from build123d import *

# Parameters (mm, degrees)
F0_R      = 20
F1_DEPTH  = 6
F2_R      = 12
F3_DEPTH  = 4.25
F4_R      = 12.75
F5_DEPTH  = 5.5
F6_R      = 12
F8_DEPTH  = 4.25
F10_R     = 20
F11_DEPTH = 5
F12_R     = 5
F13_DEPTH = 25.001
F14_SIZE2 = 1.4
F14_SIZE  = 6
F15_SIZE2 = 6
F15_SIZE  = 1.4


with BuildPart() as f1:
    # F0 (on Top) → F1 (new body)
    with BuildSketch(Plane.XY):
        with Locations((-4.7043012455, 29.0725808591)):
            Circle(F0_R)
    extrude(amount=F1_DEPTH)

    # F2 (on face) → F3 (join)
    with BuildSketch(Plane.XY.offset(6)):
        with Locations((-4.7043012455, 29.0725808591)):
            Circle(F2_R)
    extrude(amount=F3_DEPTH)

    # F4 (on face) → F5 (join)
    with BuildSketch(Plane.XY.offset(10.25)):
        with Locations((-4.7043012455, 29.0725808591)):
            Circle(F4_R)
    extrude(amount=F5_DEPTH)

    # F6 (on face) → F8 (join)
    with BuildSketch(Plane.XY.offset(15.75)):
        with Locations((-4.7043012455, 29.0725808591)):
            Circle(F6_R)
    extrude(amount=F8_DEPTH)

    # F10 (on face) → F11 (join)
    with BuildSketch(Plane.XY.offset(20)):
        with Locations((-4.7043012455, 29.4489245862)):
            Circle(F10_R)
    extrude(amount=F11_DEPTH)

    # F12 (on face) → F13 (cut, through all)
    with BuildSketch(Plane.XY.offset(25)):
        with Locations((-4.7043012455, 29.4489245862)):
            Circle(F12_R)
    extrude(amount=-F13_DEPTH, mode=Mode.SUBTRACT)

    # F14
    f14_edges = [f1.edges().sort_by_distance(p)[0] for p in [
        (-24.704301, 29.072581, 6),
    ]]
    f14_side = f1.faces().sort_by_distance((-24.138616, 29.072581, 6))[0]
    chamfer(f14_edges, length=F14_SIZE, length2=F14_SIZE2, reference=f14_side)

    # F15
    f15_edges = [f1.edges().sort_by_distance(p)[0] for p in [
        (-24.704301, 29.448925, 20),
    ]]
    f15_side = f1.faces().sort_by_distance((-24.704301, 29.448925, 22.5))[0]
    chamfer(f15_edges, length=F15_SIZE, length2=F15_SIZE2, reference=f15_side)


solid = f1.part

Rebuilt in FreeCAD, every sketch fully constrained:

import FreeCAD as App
import Part
import Sketcher
Q = App.Units.Quantity


def edges_at(feature, points):
    """Names of the edges that pass closest to the given points."""
    edges = feature.Shape.Edges
    near = lambda p: min(range(len(edges)), key=lambda i: edges[i].distToShape(Part.Vertex(*p))[0])
    return sorted({f"Edge{near(p) + 1}" for p in points})

doc = App.newDocument("Part")
params = doc.addObject("Spreadsheet::Sheet", "Params")
for row, (alias, value) in enumerate([
    ("sketch1_diameter", "40 mm"),
    ("pad1_length", "6 mm"),
    ("sketch2_diameter", "24 mm"),
    ("pad2_length", "4.25 mm"),
    ("sketch3_diameter", "25.5 mm"),
    ("pad3_length", "5.5 mm"),
    ("sketch4_diameter", "24 mm"),
    ("pad4_length", "4.25 mm"),
    ("sketch5_diameter", "40 mm"),
    ("pad5_length", "5 mm"),
    ("sketch6_diameter", "10 mm"),
    ("chamfer_size", "6 mm"),
    ("chamfer_size2", "1.4 mm"),
    ("chamfer2_size", "1.4 mm"),
    ("chamfer2_size2", "6 mm"),
], start=1):
    params.set(f"A{row}", alias)
    params.set(f"B{row}", "=" + value)
    params.setAlias(f"B{row}", alias)

body = doc.addObject("PartDesign::Body", "Body")

sketch1 = doc.addObject("Sketcher::SketchObject", "Sketch")
body.addObject(sketch1)
sketch1.AttachmentSupport = (doc.XY_Plane, [""])
sketch1.MapMode = "FlatFace"
sketch1.addGeometry(Part.Circle(App.Vector(-5, 29, 0), App.Vector(0, 0, 1), 20), False)
sketch1.addConstraint(Sketcher.Constraint("Diameter", 0, Q("40 mm")))
sketch1.addConstraint(Sketcher.Constraint("DistanceX", 0, 3, -1, 1, Q("4.704301 mm")))
sketch1.addConstraint(Sketcher.Constraint("DistanceY", -1, 1, 0, 3, Q("29.072581 mm")))
sketch1.setExpression("Constraints[0]", "Params.sketch1_diameter")
pad1 = doc.addObject("PartDesign::Pad", "Pad")
body.addObject(pad1)
pad1.Profile = sketch1
pad1.setExpression("Length", "Params.pad1_length")

sketch2 = doc.addObject("Sketcher::SketchObject", "Sketch001")
body.addObject(sketch2)
sketch2.AttachmentSupport = (doc.XY_Plane, [""])
sketch2.MapMode = "FlatFace"
sketch2.AttachmentOffset = App.Placement(App.Vector(0, 0, 6), App.Rotation())
sketch2.addGeometry(Part.Circle(App.Vector(-5, 29, 0), App.Vector(0, 0, 1), 12), False)
sketch2.addConstraint(Sketcher.Constraint("Diameter", 0, Q("24 mm")))
sketch2.addConstraint(Sketcher.Constraint("DistanceX", 0, 3, -1, 1, Q("4.704301 mm")))
sketch2.addConstraint(Sketcher.Constraint("DistanceY", -1, 1, 0, 3, Q("29.072581 mm")))
sketch2.setExpression("Constraints[0]", "Params.sketch2_diameter")
pad2 = doc.addObject("PartDesign::Pad", "Pad001")
body.addObject(pad2)
pad2.Profile = sketch2
pad2.setExpression("Length", "Params.pad2_length")

sketch3 = doc.addObject("Sketcher::SketchObject", "Sketch002")
body.addObject(sketch3)
sketch3.AttachmentSupport = (doc.XY_Plane, [""])
sketch3.MapMode = "FlatFace"
sketch3.AttachmentOffset = App.Placement(App.Vector(0, 0, 10.25), App.Rotation())
sketch3.addGeometry(Part.Circle(App.Vector(-5, 29, 0), App.Vector(0, 0, 1), 13), False)
sketch3.addConstraint(Sketcher.Constraint("Diameter", 0, Q("25.5 mm")))
sketch3.addConstraint(Sketcher.Constraint("DistanceX", 0, 3, -1, 1, Q("4.704301 mm")))
sketch3.addConstraint(Sketcher.Constraint("DistanceY", -1, 1, 0, 3, Q("29.072581 mm")))
sketch3.setExpression("Constraints[0]", "Params.sketch3_diameter")
pad3 = doc.addObject("PartDesign::Pad", "Pad002")
body.addObject(pad3)
pad3.Profile = sketch3
pad3.setExpression("Length", "Params.pad3_length")

sketch4 = doc.addObject("Sketcher::SketchObject", "Sketch003")
body.addObject(sketch4)
sketch4.AttachmentSupport = (doc.XY_Plane, [""])
sketch4.MapMode = "FlatFace"
sketch4.AttachmentOffset = App.Placement(App.Vector(0, 0, 15.75), App.Rotation())
sketch4.addGeometry(Part.Circle(App.Vector(-5, 29, 0), App.Vector(0, 0, 1), 12), False)
sketch4.addConstraint(Sketcher.Constraint("Diameter", 0, Q("24 mm")))
sketch4.addConstraint(Sketcher.Constraint("DistanceX", 0, 3, -1, 1, Q("4.704301 mm")))
sketch4.addConstraint(Sketcher.Constraint("DistanceY", -1, 1, 0, 3, Q("29.072581 mm")))
sketch4.setExpression("Constraints[0]", "Params.sketch4_diameter")
pad4 = doc.addObject("PartDesign::Pad", "Pad003")
body.addObject(pad4)
pad4.Profile = sketch4
pad4.setExpression("Length", "Params.pad4_length")

sketch5 = doc.addObject("Sketcher::SketchObject", "Sketch004")
body.addObject(sketch5)
sketch5.AttachmentSupport = (doc.XY_Plane, [""])
sketch5.MapMode = "FlatFace"
sketch5.AttachmentOffset = App.Placement(App.Vector(0, 0, 20), App.Rotation())
sketch5.addGeometry(Part.Circle(App.Vector(-5, 29, 0), App.Vector(0, 0, 1), 20), False)
sketch5.addConstraint(Sketcher.Constraint("Diameter", 0, Q("40 mm")))
sketch5.addConstraint(Sketcher.Constraint("DistanceX", 0, 3, -1, 1, Q("4.704301 mm")))
sketch5.addConstraint(Sketcher.Constraint("DistanceY", -1, 1, 0, 3, Q("29.448925 mm")))
sketch5.setExpression("Constraints[0]", "Params.sketch5_diameter")
pad5 = doc.addObject("PartDesign::Pad", "Pad004")
body.addObject(pad5)
pad5.Profile = sketch5
pad5.setExpression("Length", "Params.pad5_length")

sketch6 = doc.addObject("Sketcher::SketchObject", "Sketch005")
body.addObject(sketch6)
sketch6.AttachmentSupport = (doc.XY_Plane, [""])
sketch6.MapMode = "FlatFace"
sketch6.AttachmentOffset = App.Placement(App.Vector(0, 0, 25), App.Rotation())
sketch6.addGeometry(Part.Circle(App.Vector(-5, 29, 0), App.Vector(0, 0, 1), 5), False)
sketch6.addConstraint(Sketcher.Constraint("Diameter", 0, Q("10 mm")))
sketch6.addConstraint(Sketcher.Constraint("DistanceX", 0, 3, -1, 1, Q("4.704301 mm")))
sketch6.addConstraint(Sketcher.Constraint("DistanceY", -1, 1, 0, 3, Q("29.448925 mm")))
sketch6.setExpression("Constraints[0]", "Params.sketch6_diameter")
pocket1 = doc.addObject("PartDesign::Pocket", "Pocket")
body.addObject(pocket1)
pocket1.Profile = sketch6
pocket1.Type = "ThroughAll"
doc.recompute()

chamfer = doc.addObject("PartDesign::Chamfer", "Chamfer")
body.addObject(chamfer)
chamfer.Base = (pocket1, edges_at(pocket1, [(-24.704, 29.073, 6)]))
chamfer.ChamferType = "Two distances"
chamfer.setExpression("Size", "Params.chamfer_size")
chamfer.setExpression("Size2", "Params.chamfer_size2")
chamfer.FlipDirection = True
doc.recompute()

chamfer2 = doc.addObject("PartDesign::Chamfer", "Chamfer001")
body.addObject(chamfer2)
chamfer2.Base = (chamfer, edges_at(chamfer, [(-24.704, 29.449, 20)]))
chamfer2.ChamferType = "Two distances"
chamfer2.setExpression("Size", "Params.chamfer2_size")
chamfer2.setExpression("Size2", "Params.chamfer2_size2")

doc.recompute()
